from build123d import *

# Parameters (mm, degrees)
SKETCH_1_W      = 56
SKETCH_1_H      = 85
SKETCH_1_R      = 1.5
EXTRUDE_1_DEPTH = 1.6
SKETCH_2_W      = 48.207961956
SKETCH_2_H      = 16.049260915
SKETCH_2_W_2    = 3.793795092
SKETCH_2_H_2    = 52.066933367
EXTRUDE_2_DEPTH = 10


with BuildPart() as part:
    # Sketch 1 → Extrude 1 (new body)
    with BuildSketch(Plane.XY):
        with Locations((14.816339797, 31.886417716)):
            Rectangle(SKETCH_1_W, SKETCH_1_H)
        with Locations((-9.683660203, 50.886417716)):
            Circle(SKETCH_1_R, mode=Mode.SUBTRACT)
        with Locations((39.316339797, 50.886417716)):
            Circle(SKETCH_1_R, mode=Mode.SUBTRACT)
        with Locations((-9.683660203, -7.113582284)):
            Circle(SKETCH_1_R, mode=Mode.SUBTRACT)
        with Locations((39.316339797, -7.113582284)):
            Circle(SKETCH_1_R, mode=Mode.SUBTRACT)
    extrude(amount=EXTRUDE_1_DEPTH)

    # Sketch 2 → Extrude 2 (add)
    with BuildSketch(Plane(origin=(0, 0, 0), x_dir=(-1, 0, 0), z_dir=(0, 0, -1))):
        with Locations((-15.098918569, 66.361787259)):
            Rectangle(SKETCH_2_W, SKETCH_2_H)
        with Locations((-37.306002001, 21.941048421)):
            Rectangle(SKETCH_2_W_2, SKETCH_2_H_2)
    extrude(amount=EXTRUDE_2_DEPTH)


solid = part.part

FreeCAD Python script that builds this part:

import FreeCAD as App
import Part
import Sketcher

V = App.Vector


def add_polygon(sketch, points):
    """Adds a closed chain of lines whose ends are joined by coincident constraints."""
    first, n = sketch.GeometryCount, len(points)
    for a, b in zip(points, points[1:] + points[:1]):
        sketch.addGeometry(Part.LineSegment(App.Vector(*a, 0), App.Vector(*b, 0)), False)
    for i in range(n):
        sketch.addConstraint(Sketcher.Constraint("Coincident", first + i, 2, first + (i + 1) % n, 1))

doc = App.newDocument("Part")
params = doc.addObject("Spreadsheet::Sheet", "Params")
for row, (alias, value) in enumerate([
    ("sketch1_diameter", "3 mm"),
    ("sketch1_width", "56 mm"),
    ("sketch1_height", "85 mm"),
    ("pad1_length", "1.6 mm"),
    ("pad2_length", "10 mm"),
], start=1):
    params.set(f"A{row}", alias)
    params.set(f"B{row}", "=" + value)
    params.setAlias(f"B{row}", alias)

body = doc.addObject("PartDesign::Body", "Body")

sketch1 = doc.addObject("Sketcher::SketchObject", "Sketch")
body.addObject(sketch1)
sketch1.AttachmentSupport = (doc.XY_Plane, [""])
sketch1.MapMode = "FlatFace"
add_polygon(sketch1, [(-13.18366, 74.386418), (-13.18366, -10.613582), (42.81634, -10.613582), (42.81634, 74.386418)])
sketch1.addGeometry(Part.Circle(V(-9.68366, -7.113582, 0), V(0, 0, 1), 1.5), False)
sketch1.addGeometry(Part.Circle(V(39.31634, -7.113582, 0), V(0, 0, 1), 1.5), False)
sketch1.addGeometry(Part.Circle(V(-9.68366, 50.886418, 0), V(0, 0, 1), 1.5), False)
sketch1.addGeometry(Part.Circle(V(39.31634, 50.886418, 0), V(0, 0, 1), 1.5), False)
sketch1.addConstraint([
    Sketcher.Constraint("Vertical", 0),
    Sketcher.Constraint("Horizontal", 1),
    Sketcher.Constraint("Vertical", 2),
    Sketcher.Constraint("Horizontal", 3),
    Sketcher.Constraint("Equal", 4, 5),
    Sketcher.Constraint("Equal", 5, 6),
    Sketcher.Constraint("Equal", 6, 7),
    Sketcher.Constraint("Horizontal", 4, 3, 5, 3),
    Sketcher.Constraint("Horizontal", 6, 3, 7, 3),
    Sketcher.Constraint("Vertical", 4, 3, 6, 3),
    Sketcher.Constraint("Vertical", 5, 3, 7, 3),
    Sketcher.Constraint("Diameter", 4, 3.0),
    Sketcher.Constraint("DistanceX", 1, 1, 1, 2, 56.0),
    Sketcher.Constraint("DistanceY", 0, 2, 0, 1, 85.0),
    Sketcher.Constraint("DistanceX", 4, 3, 5, 3, 49.0),
    Sketcher.Constraint("DistanceY", 4, 3, 6, 3, 58.0),
    Sketcher.Constraint("DistanceX", 0, 2, 4, 3, 3.5),
    Sketcher.Constraint("DistanceY", 0, 2, 4, 3, 3.5),
    Sketcher.Constraint("DistanceX", 4, 3, -1, 1, 9.68366),
    Sketcher.Constraint("DistanceY", 4, 3, -1, 1, 7.113582),
])
sketch1.setExpression("Constraints[15]", "Params.sketch1_diameter")
sketch1.setExpression("Constraints[16]", "Params.sketch1_width")
sketch1.setExpression("Constraints[17]", "Params.sketch1_height")
pad1 = doc.addObject("PartDesign::Pad", "Pad")
body.addObject(pad1)
pad1.Profile = sketch1
pad1.setExpression("Length", "Params.pad1_length")

sketch2 = doc.addObject("Sketcher::SketchObject", "Sketch001")
body.addObject(sketch2)
sketch2.AttachmentSupport = (doc.XY_Plane, [""])
sketch2.MapMode = "FlatFace"
add_polygon(sketch2, [(39.2029, 74.386418), (39.2029, 58.337157), (-9.005062, 58.337157), (-9.005062, 74.386418)])
add_polygon(sketch2, [(39.2029, 47.974515), (39.2029, -4.092418), (35.409104, -4.092418), (35.409104, 47.974515)])
sketch2.addConstraint([
    Sketcher.Constraint("Vertical", 0),
    Sketcher.Constraint("Horizontal", 1),
    Sketcher.Constraint("Vertical", 2),
    Sketcher.Constraint("Horizontal", 3),
    Sketcher.Constraint("Vertical", 4),
    Sketcher.Constraint("Horizontal", 5),
    Sketcher.Constraint("Vertical", 6),
    Sketcher.Constraint("Horizontal", 7),
    Sketcher.Constraint("Vertical", 3, 2, 4, 2),
    Sketcher.Constraint("DistanceX", 1, 2, 1, 1, 48.207962),
    Sketcher.Constraint("DistanceY", 0, 2, 0, 1, 16.049261),
    Sketcher.Constraint("DistanceX", -1, 1, 0, 2, 39.2029),
    Sketcher.Constraint("DistanceX", 5, 2, 5, 1, 3.793795),
    Sketcher.Constraint("DistanceY", 4, 2, 4, 1, 52.066933),
    Sketcher.Constraint("DistanceY", 4, 2, -1, 1, 4.092418),
    Sketcher.Constraint("DistanceY", 6, 2, 0, 2, 10.362642),
])
pad2 = doc.addObject("PartDesign::Pad", "Pad001")
body.addObject(pad2)
pad2.Profile = sketch2
pad2.setExpression("Length", "Params.pad2_length")
pad2.Reversed = True

doc.recompute()
